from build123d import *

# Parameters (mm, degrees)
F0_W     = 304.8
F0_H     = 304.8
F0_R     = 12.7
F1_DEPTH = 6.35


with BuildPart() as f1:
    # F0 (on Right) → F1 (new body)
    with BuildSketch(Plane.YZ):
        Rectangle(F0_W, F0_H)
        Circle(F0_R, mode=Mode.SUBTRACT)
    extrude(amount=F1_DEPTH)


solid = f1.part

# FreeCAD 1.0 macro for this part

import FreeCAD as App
import Part
import Sketcher
from FreeCAD import Vector
Q = App.Units.Quantity

doc = App.newDocument("Part")
body = doc.addObject("PartDesign::Body", "Body")

# Sketch on YZ plane
sketch1 = body.newObject("Sketcher::SketchObject", "Sketch")
sketch1.AttachmentSupport = (doc.getObject("YZ_Plane"), [""])
sketch1.MapMode = "FlatFace"
sketch1.addGeometry(Part.LineSegment(Vector(-152.4, 152.4, 0), Vector(-152.4, -152.4, 0)), False)
sketch1.addGeometry(Part.LineSegment(Vector(-152.4, -152.4, 0), Vector(152.4, -152.4, 0)), False)
sketch1.addGeometry(Part.LineSegment(Vector(152.4, -152.4, 0), Vector(152.4, 152.4, 0)), False)
sketch1.addGeometry(Part.LineSegment(Vector(152.4, 152.4, 0), Vector(-152.4, 152.4, 0)), False)
sketch1.addGeometry(Part.Circle(Vector(0, 0, 0), Vector(0, 0, 1), 12.7), False)
sketch1.addConstraint(Sketcher.Constraint("Coincident", 0, 2, 1, 1))
sketch1.addConstraint(Sketcher.Constraint("Coincident", 1, 2, 2, 1))
sketch1.addConstraint(Sketcher.Constraint("Coincident", 2, 2, 3, 1))
sketch1.addConstraint(Sketcher.Constraint("Coincident", 3, 2, 0, 1))
sketch1.addConstraint(Sketcher.Constraint("Vertical", 0))
sketch1.addConstraint(Sketcher.Constraint("Horizontal", 1))
sketch1.addConstraint(Sketcher.Constraint("Vertical", 2))
sketch1.addConstraint(Sketcher.Constraint("Horizontal", 3))
sketch1.addConstraint(Sketcher.Constraint("Coincident", 4, 3, -1, 1))
sketch1.addConstraint(Sketcher.Constraint("Symmetric", 0, 2, 2, 2, -1, 1))
sketch1.addConstraint(Sketcher.Constraint("Equal", 3, 0))
sketch1.addConstraint(Sketcher.Constraint("Diameter", 4, Q("1 in")))
sketch1.addConstraint(Sketcher.Constraint("DistanceX", 1, 1, 1, 2, Q("12 in")))
pad1 = body.newObject("PartDesign::Pad", "Pad")
pad1.Profile = sketch1
pad1.Length = Q("0.25 in")

doc.recompute()
